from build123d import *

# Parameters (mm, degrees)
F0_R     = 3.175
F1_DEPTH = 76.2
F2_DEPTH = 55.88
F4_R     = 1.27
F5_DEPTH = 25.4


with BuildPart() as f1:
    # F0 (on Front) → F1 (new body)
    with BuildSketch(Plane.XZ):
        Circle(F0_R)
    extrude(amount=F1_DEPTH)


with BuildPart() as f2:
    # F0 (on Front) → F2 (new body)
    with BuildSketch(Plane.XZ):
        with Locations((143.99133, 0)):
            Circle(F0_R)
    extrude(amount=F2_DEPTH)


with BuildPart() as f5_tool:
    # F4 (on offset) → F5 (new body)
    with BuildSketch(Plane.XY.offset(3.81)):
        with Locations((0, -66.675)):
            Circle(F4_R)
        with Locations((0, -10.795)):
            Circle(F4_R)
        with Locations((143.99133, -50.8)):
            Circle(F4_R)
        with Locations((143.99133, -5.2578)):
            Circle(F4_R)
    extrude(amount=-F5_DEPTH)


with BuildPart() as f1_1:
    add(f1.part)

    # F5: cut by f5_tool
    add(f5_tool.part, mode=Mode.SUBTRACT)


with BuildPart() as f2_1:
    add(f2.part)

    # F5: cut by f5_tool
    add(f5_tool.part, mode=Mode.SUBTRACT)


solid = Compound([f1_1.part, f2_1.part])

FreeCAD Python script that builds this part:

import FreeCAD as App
import Part
import Sketcher

V = App.Vector
Q = App.Units.Quantity

doc = App.newDocument("Part")
params = doc.addObject("Spreadsheet::Sheet", "Params")
for row, (alias, value) in enumerate([
    ("sketch1_diameter", "0.25 in"),
    ("pad1_length", "3 in"),
    ("sketch2_diameter", "0.25 in"),
    ("pad2_length", "2.2 in"),
    ("sketch3_diameter", "0.1 in"),
    ("pad3_length", "1 in"),
], start=1):
    params.set(f"A{row}", alias)
    params.set(f"B{row}", "=" + value)
    params.setAlias(f"B{row}", alias)

body = doc.addObject("PartDesign::Body", "Body")

# Sketch on XZ plane
sketch1 = body.newObject("Sketcher::SketchObject", "Sketch")
sketch1.AttachmentSupport = (doc.getObject("XZ_Plane"), [""])
sketch1.MapMode = "FlatFace"
sketch1.addGeometry(Part.Circle(V(0, 0, 0), V(0, 0, 1), 3.2), False)
sketch1.addConstraint([
    Sketcher.Constraint("Coincident", 0, 3, -1, 1),
    Sketcher.Constraint("Diameter", 0, Q("0.25 in")),
])
sketch1.setExpression("Constraints[1]", "Params.sketch1_diameter")
pad1 = body.newObject("PartDesign::Pad", "Pad")
pad1.Profile = sketch1
pad1.setExpression("Length", "Params.pad1_length")
body2 = doc.addObject("PartDesign::Body", "Body001")

# Sketch on XZ plane
sketch2 = body2.newObject("Sketcher::SketchObject", "Sketch001")
sketch2.AttachmentSupport = (doc.getObject("XZ_Plane001"), [""])
sketch2.MapMode = "FlatFace"
sketch2.addGeometry(Part.Circle(V(144, 0, 0), V(0, 0, 1), 3.2), False)
sketch2.addConstraint([
    Sketcher.Constraint("PointOnObject", 0, 3, -1),
    Sketcher.Constraint("Diameter", 0, Q("0.25 in")),
    Sketcher.Constraint("DistanceX", -1, 1, 0, 3, 143.99133),
])
sketch2.setExpression("Constraints[1]", "Params.sketch2_diameter")
pad2 = body2.newObject("PartDesign::Pad", "Pad001")
pad2.Profile = sketch2
pad2.setExpression("Length", "Params.pad2_length")
body3 = doc.addObject("PartDesign::Body", "Body002")
body3.AllowCompound = True

# Sketch on XY plane
sketch3 = body3.newObject("Sketcher::SketchObject", "Sketch002")
sketch3.AttachmentSupport = (doc.getObject("XY_Plane002"), [""])
sketch3.MapMode = "FlatFace"
sketch3.AttachmentOffset = App.Placement(V(0, 0, 0.15 * 25.4), App.Rotation())
sketch3.addGeometry([
    Part.Circle(V(0, -66.7, 0), V(0, 0, 1), 1.3),
    Part.Circle(V(0, -10.8, 0), V(0, 0, 1), 1.3),
    Part.Circle(V(144, -50.8, 0), V(0, 0, 1), 1.3),
    Part.Circle(V(144, -5.3, 0), V(0, 0, 1), 1.3),
], False)
sketch3.addConstraint([
    Sketcher.Constraint("Equal", 0, 1),
    Sketcher.Constraint("Equal", 1, 2),
    Sketcher.Constraint("Equal", 2, 3),
    Sketcher.Constraint("PointOnObject", 0, 3, -2),
    Sketcher.Constraint("PointOnObject", 1, 3, -2),
    Sketcher.Constraint("Vertical", 2, 3, 3, 3),
    Sketcher.Constraint("Diameter", 0, Q("0.1 in")),
    Sketcher.Constraint("DistanceY", 2, 3, -1, 1, Q("2 in")),
    Sketcher.Constraint("DistanceY", 0, 3, 1, 3, Q("2.2 in")),
    Sketcher.Constraint("DistanceY", 0, 3, -1, 1, Q("2.625 in")),
    Sketcher.Constraint("DistanceY", 3, 3, -1, 1, Q("0.207 in")),
    Sketcher.Constraint("DistanceX", -1, 1, 2, 3, 143.99133),
])
sketch3.setExpression("Constraints[6]", "Params.sketch3_diameter")
pad3 = body3.newObject("PartDesign::Pad", "Pad002")
pad3.Profile = sketch3
pad3.setExpression("Length", "Params.pad3_length")
pad3.Reversed = True
doc.recompute()

body4 = doc.addObject("PartDesign::Body", "Body003")
body4.BaseFeature = body3
boolean = body.newObject("PartDesign::Boolean", "Boolean")
boolean.Type = "Cut"
boolean.addObjects([body4])
doc.recompute()

boolean2 = body2.newObject("PartDesign::Boolean", "Boolean001")
boolean2.Type = "Cut"
boolean2.addObjects([body3])

doc.recompute()
